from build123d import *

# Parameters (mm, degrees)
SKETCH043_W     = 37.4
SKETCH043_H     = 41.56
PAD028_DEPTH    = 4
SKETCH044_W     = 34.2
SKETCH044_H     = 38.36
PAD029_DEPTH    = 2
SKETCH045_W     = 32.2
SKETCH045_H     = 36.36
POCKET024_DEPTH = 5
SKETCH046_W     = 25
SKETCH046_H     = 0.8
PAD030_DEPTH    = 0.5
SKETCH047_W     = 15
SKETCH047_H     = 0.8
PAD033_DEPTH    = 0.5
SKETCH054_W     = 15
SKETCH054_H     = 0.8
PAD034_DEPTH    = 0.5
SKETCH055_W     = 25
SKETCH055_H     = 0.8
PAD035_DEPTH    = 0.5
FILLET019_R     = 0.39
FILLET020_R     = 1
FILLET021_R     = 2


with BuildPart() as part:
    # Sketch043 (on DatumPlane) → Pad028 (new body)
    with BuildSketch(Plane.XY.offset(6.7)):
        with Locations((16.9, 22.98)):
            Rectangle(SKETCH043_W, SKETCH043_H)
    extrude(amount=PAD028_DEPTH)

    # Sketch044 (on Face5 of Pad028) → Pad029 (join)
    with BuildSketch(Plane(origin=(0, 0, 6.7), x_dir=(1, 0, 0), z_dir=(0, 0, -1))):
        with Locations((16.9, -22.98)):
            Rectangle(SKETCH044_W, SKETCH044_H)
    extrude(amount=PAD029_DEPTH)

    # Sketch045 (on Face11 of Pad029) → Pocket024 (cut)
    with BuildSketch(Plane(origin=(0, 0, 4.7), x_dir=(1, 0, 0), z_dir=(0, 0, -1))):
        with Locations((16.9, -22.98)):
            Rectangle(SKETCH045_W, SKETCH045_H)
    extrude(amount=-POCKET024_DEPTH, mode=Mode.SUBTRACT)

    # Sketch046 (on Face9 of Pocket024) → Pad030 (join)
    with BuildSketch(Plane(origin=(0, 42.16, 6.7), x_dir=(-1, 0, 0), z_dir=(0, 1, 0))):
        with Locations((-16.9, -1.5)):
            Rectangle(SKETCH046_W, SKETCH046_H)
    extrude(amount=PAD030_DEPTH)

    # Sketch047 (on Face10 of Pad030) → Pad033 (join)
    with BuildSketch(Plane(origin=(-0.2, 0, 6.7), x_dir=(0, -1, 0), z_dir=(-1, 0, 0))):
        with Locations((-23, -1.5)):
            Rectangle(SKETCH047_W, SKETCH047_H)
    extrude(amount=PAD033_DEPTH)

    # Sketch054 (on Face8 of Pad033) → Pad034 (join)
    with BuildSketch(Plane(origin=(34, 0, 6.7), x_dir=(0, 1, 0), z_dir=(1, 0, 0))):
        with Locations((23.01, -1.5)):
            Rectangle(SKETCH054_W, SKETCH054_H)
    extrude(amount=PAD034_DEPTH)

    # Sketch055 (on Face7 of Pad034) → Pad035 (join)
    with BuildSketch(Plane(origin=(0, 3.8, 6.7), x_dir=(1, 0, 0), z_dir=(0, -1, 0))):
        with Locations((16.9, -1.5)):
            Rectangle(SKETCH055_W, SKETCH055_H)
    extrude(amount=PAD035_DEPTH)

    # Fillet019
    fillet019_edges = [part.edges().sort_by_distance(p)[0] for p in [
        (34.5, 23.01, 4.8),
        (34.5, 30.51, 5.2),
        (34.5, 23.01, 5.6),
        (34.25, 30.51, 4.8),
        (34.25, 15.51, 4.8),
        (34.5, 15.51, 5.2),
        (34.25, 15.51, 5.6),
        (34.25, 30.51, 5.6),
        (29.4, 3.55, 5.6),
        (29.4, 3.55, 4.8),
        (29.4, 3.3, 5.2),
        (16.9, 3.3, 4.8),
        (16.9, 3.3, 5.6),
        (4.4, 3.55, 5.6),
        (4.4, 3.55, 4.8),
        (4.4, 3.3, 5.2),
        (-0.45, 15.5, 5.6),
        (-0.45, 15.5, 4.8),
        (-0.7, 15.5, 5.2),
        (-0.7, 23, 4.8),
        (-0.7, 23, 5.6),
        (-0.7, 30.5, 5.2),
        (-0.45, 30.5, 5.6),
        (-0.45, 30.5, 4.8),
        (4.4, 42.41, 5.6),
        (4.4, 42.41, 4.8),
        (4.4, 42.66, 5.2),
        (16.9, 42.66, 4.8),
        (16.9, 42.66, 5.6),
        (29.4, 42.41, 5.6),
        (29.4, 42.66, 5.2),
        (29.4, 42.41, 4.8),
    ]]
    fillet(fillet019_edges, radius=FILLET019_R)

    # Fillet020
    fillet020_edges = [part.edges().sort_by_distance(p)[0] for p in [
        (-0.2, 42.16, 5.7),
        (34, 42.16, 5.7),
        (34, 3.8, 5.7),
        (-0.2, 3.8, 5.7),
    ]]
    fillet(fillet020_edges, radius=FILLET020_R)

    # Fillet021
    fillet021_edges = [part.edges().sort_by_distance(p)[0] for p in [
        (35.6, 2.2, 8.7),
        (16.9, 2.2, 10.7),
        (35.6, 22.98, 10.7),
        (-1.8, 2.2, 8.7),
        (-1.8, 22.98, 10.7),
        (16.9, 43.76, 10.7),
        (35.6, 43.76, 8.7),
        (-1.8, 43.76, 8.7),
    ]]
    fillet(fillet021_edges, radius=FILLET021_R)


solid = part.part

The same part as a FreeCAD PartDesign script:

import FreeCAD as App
import Part
import Sketcher


def edges_at(feature, points):
    """Names of the edges that pass closest to the given points."""
    edges = feature.Shape.Edges
    near = lambda p: min(range(len(edges)), key=lambda i: edges[i].distToShape(Part.Vertex(*p))[0])
    return sorted({f"Edge{near(p) + 1}" for p in points})


def add_polygon(sketch, points):
    """Adds a closed chain of lines whose ends are joined by coincident constraints."""
    first, n = sketch.GeometryCount, len(points)
    for a, b in zip(points, points[1:] + points[:1]):
        sketch.addGeometry(Part.LineSegment(App.Vector(*a, 0), App.Vector(*b, 0)), False)
    for i in range(n):
        sketch.addConstraint(Sketcher.Constraint("Coincident", first + i, 2, first + (i + 1) % n, 1))

doc = App.newDocument("Part")
body = doc.addObject("PartDesign::Body", "Body")

# Sketch on XY plane
sketch1 = body.newObject("Sketcher::SketchObject", "Sketch")
sketch1.AttachmentSupport = (doc.getObject("XY_Plane"), [""])
sketch1.MapMode = "FlatFace"
sketch1.AttachmentOffset = App.Placement(App.Vector(0, 0, 6.7), App.Rotation())
add_polygon(sketch1, [(-2, 44), (-2, 2), (36, 2), (36, 44)])  # lines 0-3
sketch1.addConstraint([
    Sketcher.Constraint("Vertical", 0),
    Sketcher.Constraint("Horizontal", 1),
    Sketcher.Constraint("Vertical", 2),
    Sketcher.Constraint("Horizontal", 3),
    Sketcher.Constraint("DistanceX", 1, 1, 1, 2, 37.4),
    Sketcher.Constraint("DistanceY", 0, 2, 0, 1, 41.56),
    Sketcher.Constraint("DistanceX", 0, 2, -1, 1, 1.8),
    Sketcher.Constraint("DistanceY", -1, 1, 0, 2, 2.2),
])
pad1 = body.newObject("PartDesign::Pad", "Pad")
pad1.Profile = sketch1
pad1.Length = 4

# Sketch on XY plane
sketch2 = body.newObject("Sketcher::SketchObject", "Sketch001")
sketch2.AttachmentSupport = (doc.getObject("XY_Plane"), [""])
sketch2.MapMode = "FlatFace"
sketch2.AttachmentOffset = App.Placement(App.Vector(0, 0, 6.7), App.Rotation())
add_polygon(sketch2, [(0, 4), (0, 42), (34, 42), (34, 4)])  # lines 0-3
sketch2.addConstraint([
    Sketcher.Constraint("Vertical", 0),
    Sketcher.Constraint("Horizontal", 1),
    Sketcher.Constraint("Vertical", 2),
    Sketcher.Constraint("Horizontal", 3),
    Sketcher.Constraint("DistanceX", 1, 1, 1, 2, 34.2),
    Sketcher.Constraint("DistanceX", -1, 1, 1, 2, 34.0),
    Sketcher.Constraint("DistanceY", 0, 1, 0, 2, 38.36),
    Sketcher.Constraint("DistanceY", -1, 1, 2, 2, 3.8),
])
pad2 = body.newObject("PartDesign::Pad", "Pad001")
pad2.Profile = sketch2
pad2.Length = 2
pad2.Reversed = True

# Sketch on XY plane
sketch3 = body.newObject("Sketcher::SketchObject", "Sketch002")
sketch3.AttachmentSupport = (doc.getObject("XY_Plane"), [""])
sketch3.MapMode = "FlatFace"
sketch3.AttachmentOffset = App.Placement(App.Vector(0, 0, 4.7), App.Rotation())
add_polygon(sketch3, [(1, 5), (1, 41), (33, 41), (33, 5)])  # lines 0-3
sketch3.addConstraint([
    Sketcher.Constraint("Vertical", 0),
    Sketcher.Constraint("Horizontal", 1),
    Sketcher.Constraint("Vertical", 2),
    Sketcher.Constraint("Horizontal", 3),
    Sketcher.Constraint("DistanceX", 1, 1, 1, 2, 32.2),
    Sketcher.Constraint("DistanceX", -1, 1, 1, 2, 33.0),
    Sketcher.Constraint("DistanceY", 0, 1, 0, 2, 36.36),
    Sketcher.Constraint("DistanceY", -1, 1, 2, 2, 4.8),
])
pocket1 = body.newObject("PartDesign::Pocket", "Pocket")
pocket1.Profile = sketch3
pocket1.Length = 5
pocket1.Reversed = True

# Sketch on XZ plane
sketch4 = body.newObject("Sketcher::SketchObject", "Sketch003")
sketch4.AttachmentSupport = (doc.getObject("XZ_Plane"), [""])
sketch4.MapMode = "FlatFace"
sketch4.AttachmentOffset = App.Placement(App.Vector(0, 0, -42.16), App.Rotation())
add_polygon(sketch4, [(29.4, 5.6), (29.4, 4.8), (4.4, 4.8), (4.4, 5.6)])  # lines 0-3
sketch4.addConstraint([
    Sketcher.Constraint("Vertical", 0),
    Sketcher.Constraint("Horizontal", 1),
    Sketcher.Constraint("Vertical", 2),
    Sketcher.Constraint("Horizontal", 3),
    Sketcher.Constraint("DistanceX", 1, 2, 1, 1, 25.0),
    Sketcher.Constraint("DistanceY", 0, 2, 0, 1, 0.8),
    Sketcher.Constraint("DistanceX", -1, 1, 0, 2, 29.4),
    Sketcher.Constraint("DistanceY", -1, 1, 0, 2, 4.8),
])
pad3 = body.newObject("PartDesign::Pad", "Pad002")
pad3.Profile = sketch4
pad3.Length = 0.5
pad3.Reversed = True

# Sketch on YZ plane
sketch5 = body.newObject("Sketcher::SketchObject", "Sketch004")
sketch5.AttachmentSupport = (doc.getObject("YZ_Plane"), [""])
sketch5.MapMode = "FlatFace"
sketch5.AttachmentOffset = App.Placement(App.Vector(0, 0, -0.2), App.Rotation())
add_polygon(sketch5, [(30.5, 5.6), (30.5, 4.8), (15.5, 4.8), (15.5, 5.6)])  # lines 0-3
sketch5.addConstraint([
    Sketcher.Constraint("Vertical", 0),
    Sketcher.Constraint("Horizontal", 1),
    Sketcher.Constraint("Vertical", 2),
    Sketcher.Constraint("Horizontal", 3),
    Sketcher.Constraint("DistanceX", 1, 2, 1, 1, 15.0),
    Sketcher.Constraint("DistanceY", 0, 2, 0, 1, 0.8),
    Sketcher.Constraint("DistanceX", -1, 1, 0, 2, 30.5),
    Sketcher.Constraint("DistanceY", -1, 1, 0, 2, 4.8),
])
pad4 = body.newObject("PartDesign::Pad", "Pad003")
pad4.Profile = sketch5
pad4.Length = 0.5
pad4.Reversed = True

# Sketch on YZ plane
sketch6 = body.newObject("Sketcher::SketchObject", "Sketch005")
sketch6.AttachmentSupport = (doc.getObject("YZ_Plane"), [""])
sketch6.MapMode = "FlatFace"
sketch6.AttachmentOffset = App.Placement(App.Vector(0, 0, 34), App.Rotation())
add_polygon(sketch6, [(15.5, 5.6), (15.5, 4.8), (30.5, 4.8), (30.5, 5.6)])  # lines 0-3
sketch6.addConstraint([
    Sketcher.Constraint("Vertical", 0),
    Sketcher.Constraint("Horizontal", 1),
    Sketcher.Constraint("Vertical", 2),
    Sketcher.Constraint("Horizontal", 3),
    Sketcher.Constraint("DistanceX", 1, 1, 1, 2, 15.0),
    Sketcher.Constraint("DistanceY", 0, 2, 0, 1, 0.8),
    Sketcher.Constraint("DistanceY", -1, 1, 0, 2, 4.8),
    Sketcher.Constraint("DistanceX", -1, 1, 0, 2, 15.51),
])
pad5 = body.newObject("PartDesign::Pad", "Pad004")
pad5.Profile = sketch6
pad5.Length = 0.5

# Sketch on XZ plane
sketch7 = body.newObject("Sketcher::SketchObject", "Sketch006")
sketch7.AttachmentSupport = (doc.getObject("XZ_Plane"), [""])
sketch7.MapMode = "FlatFace"
sketch7.AttachmentOffset = App.Placement(App.Vector(0, 0, -3.8), App.Rotation())
add_polygon(sketch7, [(4.4, 5.6), (4.4, 4.8), (29.4, 4.8), (29.4, 5.6)])  # lines 0-3
sketch7.addConstraint([
    Sketcher.Constraint("Vertical", 0),
    Sketcher.Constraint("Horizontal", 1),
    Sketcher.Constraint("Vertical", 2),
    Sketcher.Constraint("Horizontal", 3),
    Sketcher.Constraint("DistanceX", 1, 1, 1, 2, 25.0),
    Sketcher.Constraint("DistanceY", 0, 2, 0, 1, 0.8),
    Sketcher.Constraint("DistanceX", -1, 1, 0, 2, 4.4),
    Sketcher.Constraint("DistanceY", -1, 1, 0, 2, 4.8),
])
pad6 = body.newObject("PartDesign::Pad", "Pad005")
pad6.Profile = sketch7
pad6.Length = 0.5
doc.recompute()

fillet = body.newObject("PartDesign::Fillet", "Fillet")
fillet.Base = (pad6, edges_at(pad6, [
    (34.5, 23.01, 4.8),
    (34.5, 30.51, 5.2),
    (34.5, 23.01, 5.6),
    (34.25, 30.51, 4.8),
    (34.25, 15.51, 4.8),
    (34.5, 15.51, 5.2),
    (34.25, 15.51, 5.6),
    (34.25, 30.51, 5.6),
    (29.4, 3.55, 5.6),
    (29.4, 3.55, 4.8),
    (29.4, 3.3, 5.2),
    (16.9, 3.3, 4.8),
    (16.9, 3.3, 5.6),
    (4.4, 3.55, 5.6),
    (4.4, 3.55, 4.8),
    (4.4, 3.3, 5.2),
    (-0.45, 15.5, 5.6),
    (-0.45, 15.5, 4.8),
    (-0.7, 15.5, 5.2),
    (-0.7, 23, 4.8),
    (-0.7, 23, 5.6),
    (-0.7, 30.5, 5.2),
    (-0.45, 30.5, 5.6),
    (-0.45, 30.5, 4.8),
    (4.4, 42.41, 5.6),
    (4.4, 42.41, 4.8),
    (4.4, 42.66, 5.2),
    (16.9, 42.66, 4.8),
    (16.9, 42.66, 5.6),
    (29.4, 42.41, 5.6),
    (29.4, 42.66, 5.2),
    (29.4, 42.41, 4.8),
]))
fillet.Radius = 0.39
doc.recompute()

fillet2 = body.newObject("PartDesign::Fillet", "Fillet001")
fillet2.Base = (fillet, edges_at(fillet, [
    (-0.2, 42.16, 5.7),
    (34, 42.16, 5.7),
    (34, 3.8, 5.7),
    (-0.2, 3.8, 5.7),
]))
fillet2.Radius = 1
doc.recompute()

fillet3 = body.newObject("PartDesign::Fillet", "Fillet002")
fillet3.Base = (fillet2, edges_at(fillet2, [
    (35.6, 2.2, 8.7),
    (16.9, 2.2, 10.7),
    (35.6, 22.98, 10.7),
    (-1.8, 2.2, 8.7),
    (-1.8, 22.98, 10.7),
    (16.9, 43.76, 10.7),
    (35.6, 43.76, 8.7),
    (-1.8, 43.76, 8.7),
]))
fillet3.Radius = 2

doc.recompute()
